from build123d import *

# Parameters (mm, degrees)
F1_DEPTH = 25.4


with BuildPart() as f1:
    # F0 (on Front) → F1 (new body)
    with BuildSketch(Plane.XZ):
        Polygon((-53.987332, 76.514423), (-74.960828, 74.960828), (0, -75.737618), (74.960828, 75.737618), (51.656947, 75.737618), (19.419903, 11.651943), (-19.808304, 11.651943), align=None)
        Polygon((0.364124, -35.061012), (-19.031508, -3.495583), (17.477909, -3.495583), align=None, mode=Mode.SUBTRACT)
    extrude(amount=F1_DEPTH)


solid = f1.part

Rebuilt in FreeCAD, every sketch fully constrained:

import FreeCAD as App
import Part
import Sketcher
from FreeCAD import Vector
Q = App.Units.Quantity

doc = App.newDocument("Part")
body = doc.addObject("PartDesign::Body", "Body")

# Sketch on XZ plane
sketch1 = body.newObject("Sketcher::SketchObject", "Sketch")
sketch1.AttachmentSupport = (doc.getObject("XZ_Plane"), [""])
sketch1.MapMode = "FlatFace"
sketch1.addGeometry([
    Part.LineSegment(Vector(-54, 77, 0), Vector(-75, 75, 0)),  # 0
    Part.LineSegment(Vector(-75, 75, 0), Vector(0, -76, 0)),  # 1
    Part.LineSegment(Vector(0, -76, 0), Vector(75, 76, 0)),  # 2
    Part.LineSegment(Vector(75, 76, 0), Vector(52, 76, 0)),  # 3
    Part.LineSegment(Vector(52, 76, 0), Vector(19, 12, 0)),  # 4
    Part.LineSegment(Vector(19, 12, 0), Vector(-20, 12, 0)),  # 5
    Part.LineSegment(Vector(-20, 12, 0), Vector(-54, 77, 0)),  # 6
    Part.LineSegment(Vector(17, -3, 0), Vector(0, -35, 0)),  # 7
    Part.LineSegment(Vector(0, -35, 0), Vector(-19, -3, 0)),  # 8
    Part.LineSegment(Vector(-19, -3, 0), Vector(17, -3, 0)),  # 9
], False)
sketch1.addConstraint([
    Sketcher.Constraint("Coincident", 0, 2, 1, 1),
    Sketcher.Constraint("Coincident", 1, 2, 2, 1),
    Sketcher.Constraint("Coincident", 2, 2, 3, 1),
    Sketcher.Constraint("Coincident", 3, 2, 4, 1),
    Sketcher.Constraint("Coincident", 4, 2, 5, 1),
    Sketcher.Constraint("Coincident", 5, 2, 6, 1),
    Sketcher.Constraint("Coincident", 6, 2, 0, 1),
    Sketcher.Constraint("Coincident", 7, 2, 8, 1),
    Sketcher.Constraint("Coincident", 8, 2, 9, 1),
    Sketcher.Constraint("Coincident", 9, 2, 7, 1),
    Sketcher.Constraint("Horizontal", 3),
    Sketcher.Constraint("Horizontal", 5),
    Sketcher.Constraint("Horizontal", 9),
    Sketcher.Constraint("PointOnObject", 1, 2, -2),
    Sketcher.Constraint("Distance", 2, Q("169.008499 mm")),
    Sketcher.Constraint("DistanceX", 3, 2, 3, 1, Q("23.303881 mm")),
    Sketcher.Constraint("Distance", 6, Q("73.31676 mm")),
    Sketcher.Constraint("Distance", 7, Q("35.906238 mm")),
    Sketcher.Constraint("Distance", 8, Q("37.048169 mm")),
    Sketcher.Constraint("DistanceX", 5, 2, 5, 1, Q("39.228207 mm")),
    Sketcher.Constraint("DistanceX", 9, 1, 9, 2, Q("36.509417 mm")),
    Sketcher.Constraint("DistanceX", 0, 2, -1, 1, Q("74.960828 mm")),
    Sketcher.Constraint("DistanceY", -1, 1, 0, 2, Q("74.960828 mm")),
    Sketcher.Constraint("DistanceX", -1, 1, 2, 2, Q("74.960828 mm")),
    Sketcher.Constraint("DistanceY", 7, 2, -1, 1, Q("35.061012 mm")),
    Sketcher.Constraint("DistanceX", -1, 1, 9, 2, Q("17.477909 mm")),
    Sketcher.Constraint("DistanceY", 0, 2, 2, 2, Q("0.77679 mm")),
    Sketcher.Constraint("DistanceY", 1, 2, 4, 2, Q("87.389561 mm")),
    Sketcher.Constraint("DistanceX", 0, 2, 4, 2, Q("94.380731 mm")),
    Sketcher.Constraint("DistanceX", 6, 2, 5, 2, Q("34.179028 mm")),
])
pad1 = body.newObject("PartDesign::Pad", "Pad")
pad1.Profile = sketch1
pad1.Length = Q("1 in")

doc.recompute()
